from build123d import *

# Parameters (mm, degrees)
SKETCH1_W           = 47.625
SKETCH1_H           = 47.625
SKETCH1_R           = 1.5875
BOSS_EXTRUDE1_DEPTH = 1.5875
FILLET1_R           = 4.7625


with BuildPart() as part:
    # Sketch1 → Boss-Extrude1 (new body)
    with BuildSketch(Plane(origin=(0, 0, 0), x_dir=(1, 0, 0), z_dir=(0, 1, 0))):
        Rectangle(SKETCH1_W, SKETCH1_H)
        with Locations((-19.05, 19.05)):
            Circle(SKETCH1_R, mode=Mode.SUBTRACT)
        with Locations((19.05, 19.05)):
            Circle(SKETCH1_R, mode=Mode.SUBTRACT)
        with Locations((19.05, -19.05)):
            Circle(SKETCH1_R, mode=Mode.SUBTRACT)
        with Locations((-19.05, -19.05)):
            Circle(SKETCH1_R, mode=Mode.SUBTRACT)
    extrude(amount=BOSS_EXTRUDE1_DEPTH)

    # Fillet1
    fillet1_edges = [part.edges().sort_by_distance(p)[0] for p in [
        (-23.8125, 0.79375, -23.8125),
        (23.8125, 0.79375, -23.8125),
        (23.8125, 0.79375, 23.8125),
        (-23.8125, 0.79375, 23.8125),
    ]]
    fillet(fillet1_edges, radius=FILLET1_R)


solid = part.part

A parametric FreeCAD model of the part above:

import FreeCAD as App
import Part
import Sketcher
Q = App.Units.Quantity


def edges_at(feature, points):
    """Names of the edges that pass closest to the given points."""
    edges = feature.Shape.Edges
    near = lambda p: min(range(len(edges)), key=lambda i: edges[i].distToShape(Part.Vertex(*p))[0])
    return sorted({f"Edge{near(p) + 1}" for p in points})

doc = App.newDocument("Part")
body = doc.addObject("PartDesign::Body", "Body")

# Sketch on XZ plane
sketch1 = body.newObject("Sketcher::SketchObject", "Sketch")
sketch1.AttachmentSupport = (doc.getObject("XZ_Plane"), [""])
sketch1.MapMode = "FlatFace"
sketch1.addGeometry(Part.LineSegment(App.Vector(-23.8, -23.8, 0), App.Vector(-23.8, 23.8, 0)), False)
sketch1.addGeometry(Part.LineSegment(App.Vector(-23.8, 23.8, 0), App.Vector(23.8, 23.8, 0)), False)
sketch1.addGeometry(Part.LineSegment(App.Vector(23.8, 23.8, 0), App.Vector(23.8, -23.8, 0)), False)
sketch1.addGeometry(Part.LineSegment(App.Vector(23.8, -23.8, 0), App.Vector(-23.8, -23.8, 0)), False)
sketch1.addGeometry(Part.Circle(App.Vector(-19.1, 19.1, 0), App.Vector(0, 0, 1), 1.6), False)
sketch1.addGeometry(Part.Circle(App.Vector(19.1, 19.1, 0), App.Vector(0, 0, 1), 1.6), False)
sketch1.addGeometry(Part.Circle(App.Vector(-19.1, -19.1, 0), App.Vector(0, 0, 1), 1.6), False)
sketch1.addGeometry(Part.Circle(App.Vector(19.1, -19.1, 0), App.Vector(0, 0, 1), 1.6), False)
sketch1.addConstraint(Sketcher.Constraint("Coincident", 0, 2, 1, 1))
sketch1.addConstraint(Sketcher.Constraint("Coincident", 1, 2, 2, 1))
sketch1.addConstraint(Sketcher.Constraint("Coincident", 2, 2, 3, 1))
sketch1.addConstraint(Sketcher.Constraint("Coincident", 3, 2, 0, 1))
sketch1.addConstraint(Sketcher.Constraint("Vertical", 0))
sketch1.addConstraint(Sketcher.Constraint("Horizontal", 1))
sketch1.addConstraint(Sketcher.Constraint("Vertical", 2))
sketch1.addConstraint(Sketcher.Constraint("Horizontal", 3))
sketch1.addConstraint(Sketcher.Constraint("Equal", 4, 5))
sketch1.addConstraint(Sketcher.Constraint("Equal", 5, 6))
sketch1.addConstraint(Sketcher.Constraint("Equal", 6, 7))
sketch1.addConstraint(Sketcher.Constraint("Symmetric", 5, 3, 6, 3, -1, 1))
sketch1.addConstraint(Sketcher.Constraint("Symmetric", 4, 3, 7, 3, -1, 1))
sketch1.addConstraint(Sketcher.Constraint("Symmetric", 0, 2, 2, 2, -1, 1))
sketch1.addConstraint(Sketcher.Constraint("Symmetric", 4, 3, 5, 3, -2))
sketch1.addConstraint(Sketcher.Constraint("Equal", 3, 0))
sketch1.addConstraint(Sketcher.Constraint("Diameter", 4, Q("0.125 in")))
sketch1.addConstraint(Sketcher.Constraint("DistanceX", 4, 3, 5, 3, Q("1.5 in")))
sketch1.addConstraint(Sketcher.Constraint("DistanceY", 6, 3, 4, 3, Q("1.5 in")))
sketch1.addConstraint(Sketcher.Constraint("DistanceX", 1, 1, 1, 2, Q("1.875 in")))
pad1 = body.newObject("PartDesign::Pad", "Pad")
pad1.Profile = sketch1
pad1.Length = Q("0.0625 in")
pad1.Reversed = True
doc.recompute()

fillet = body.newObject("PartDesign::Fillet", "Fillet")
fillet.Base = (pad1, edges_at(pad1, [
    (-23.812, 0.794, -23.812),
    (23.812, 0.794, -23.812),
    (23.812, 0.794, 23.812),
    (-23.812, 0.794, 23.812),
]))
fillet.Radius = Q("0.1875 in")

doc.recompute()
